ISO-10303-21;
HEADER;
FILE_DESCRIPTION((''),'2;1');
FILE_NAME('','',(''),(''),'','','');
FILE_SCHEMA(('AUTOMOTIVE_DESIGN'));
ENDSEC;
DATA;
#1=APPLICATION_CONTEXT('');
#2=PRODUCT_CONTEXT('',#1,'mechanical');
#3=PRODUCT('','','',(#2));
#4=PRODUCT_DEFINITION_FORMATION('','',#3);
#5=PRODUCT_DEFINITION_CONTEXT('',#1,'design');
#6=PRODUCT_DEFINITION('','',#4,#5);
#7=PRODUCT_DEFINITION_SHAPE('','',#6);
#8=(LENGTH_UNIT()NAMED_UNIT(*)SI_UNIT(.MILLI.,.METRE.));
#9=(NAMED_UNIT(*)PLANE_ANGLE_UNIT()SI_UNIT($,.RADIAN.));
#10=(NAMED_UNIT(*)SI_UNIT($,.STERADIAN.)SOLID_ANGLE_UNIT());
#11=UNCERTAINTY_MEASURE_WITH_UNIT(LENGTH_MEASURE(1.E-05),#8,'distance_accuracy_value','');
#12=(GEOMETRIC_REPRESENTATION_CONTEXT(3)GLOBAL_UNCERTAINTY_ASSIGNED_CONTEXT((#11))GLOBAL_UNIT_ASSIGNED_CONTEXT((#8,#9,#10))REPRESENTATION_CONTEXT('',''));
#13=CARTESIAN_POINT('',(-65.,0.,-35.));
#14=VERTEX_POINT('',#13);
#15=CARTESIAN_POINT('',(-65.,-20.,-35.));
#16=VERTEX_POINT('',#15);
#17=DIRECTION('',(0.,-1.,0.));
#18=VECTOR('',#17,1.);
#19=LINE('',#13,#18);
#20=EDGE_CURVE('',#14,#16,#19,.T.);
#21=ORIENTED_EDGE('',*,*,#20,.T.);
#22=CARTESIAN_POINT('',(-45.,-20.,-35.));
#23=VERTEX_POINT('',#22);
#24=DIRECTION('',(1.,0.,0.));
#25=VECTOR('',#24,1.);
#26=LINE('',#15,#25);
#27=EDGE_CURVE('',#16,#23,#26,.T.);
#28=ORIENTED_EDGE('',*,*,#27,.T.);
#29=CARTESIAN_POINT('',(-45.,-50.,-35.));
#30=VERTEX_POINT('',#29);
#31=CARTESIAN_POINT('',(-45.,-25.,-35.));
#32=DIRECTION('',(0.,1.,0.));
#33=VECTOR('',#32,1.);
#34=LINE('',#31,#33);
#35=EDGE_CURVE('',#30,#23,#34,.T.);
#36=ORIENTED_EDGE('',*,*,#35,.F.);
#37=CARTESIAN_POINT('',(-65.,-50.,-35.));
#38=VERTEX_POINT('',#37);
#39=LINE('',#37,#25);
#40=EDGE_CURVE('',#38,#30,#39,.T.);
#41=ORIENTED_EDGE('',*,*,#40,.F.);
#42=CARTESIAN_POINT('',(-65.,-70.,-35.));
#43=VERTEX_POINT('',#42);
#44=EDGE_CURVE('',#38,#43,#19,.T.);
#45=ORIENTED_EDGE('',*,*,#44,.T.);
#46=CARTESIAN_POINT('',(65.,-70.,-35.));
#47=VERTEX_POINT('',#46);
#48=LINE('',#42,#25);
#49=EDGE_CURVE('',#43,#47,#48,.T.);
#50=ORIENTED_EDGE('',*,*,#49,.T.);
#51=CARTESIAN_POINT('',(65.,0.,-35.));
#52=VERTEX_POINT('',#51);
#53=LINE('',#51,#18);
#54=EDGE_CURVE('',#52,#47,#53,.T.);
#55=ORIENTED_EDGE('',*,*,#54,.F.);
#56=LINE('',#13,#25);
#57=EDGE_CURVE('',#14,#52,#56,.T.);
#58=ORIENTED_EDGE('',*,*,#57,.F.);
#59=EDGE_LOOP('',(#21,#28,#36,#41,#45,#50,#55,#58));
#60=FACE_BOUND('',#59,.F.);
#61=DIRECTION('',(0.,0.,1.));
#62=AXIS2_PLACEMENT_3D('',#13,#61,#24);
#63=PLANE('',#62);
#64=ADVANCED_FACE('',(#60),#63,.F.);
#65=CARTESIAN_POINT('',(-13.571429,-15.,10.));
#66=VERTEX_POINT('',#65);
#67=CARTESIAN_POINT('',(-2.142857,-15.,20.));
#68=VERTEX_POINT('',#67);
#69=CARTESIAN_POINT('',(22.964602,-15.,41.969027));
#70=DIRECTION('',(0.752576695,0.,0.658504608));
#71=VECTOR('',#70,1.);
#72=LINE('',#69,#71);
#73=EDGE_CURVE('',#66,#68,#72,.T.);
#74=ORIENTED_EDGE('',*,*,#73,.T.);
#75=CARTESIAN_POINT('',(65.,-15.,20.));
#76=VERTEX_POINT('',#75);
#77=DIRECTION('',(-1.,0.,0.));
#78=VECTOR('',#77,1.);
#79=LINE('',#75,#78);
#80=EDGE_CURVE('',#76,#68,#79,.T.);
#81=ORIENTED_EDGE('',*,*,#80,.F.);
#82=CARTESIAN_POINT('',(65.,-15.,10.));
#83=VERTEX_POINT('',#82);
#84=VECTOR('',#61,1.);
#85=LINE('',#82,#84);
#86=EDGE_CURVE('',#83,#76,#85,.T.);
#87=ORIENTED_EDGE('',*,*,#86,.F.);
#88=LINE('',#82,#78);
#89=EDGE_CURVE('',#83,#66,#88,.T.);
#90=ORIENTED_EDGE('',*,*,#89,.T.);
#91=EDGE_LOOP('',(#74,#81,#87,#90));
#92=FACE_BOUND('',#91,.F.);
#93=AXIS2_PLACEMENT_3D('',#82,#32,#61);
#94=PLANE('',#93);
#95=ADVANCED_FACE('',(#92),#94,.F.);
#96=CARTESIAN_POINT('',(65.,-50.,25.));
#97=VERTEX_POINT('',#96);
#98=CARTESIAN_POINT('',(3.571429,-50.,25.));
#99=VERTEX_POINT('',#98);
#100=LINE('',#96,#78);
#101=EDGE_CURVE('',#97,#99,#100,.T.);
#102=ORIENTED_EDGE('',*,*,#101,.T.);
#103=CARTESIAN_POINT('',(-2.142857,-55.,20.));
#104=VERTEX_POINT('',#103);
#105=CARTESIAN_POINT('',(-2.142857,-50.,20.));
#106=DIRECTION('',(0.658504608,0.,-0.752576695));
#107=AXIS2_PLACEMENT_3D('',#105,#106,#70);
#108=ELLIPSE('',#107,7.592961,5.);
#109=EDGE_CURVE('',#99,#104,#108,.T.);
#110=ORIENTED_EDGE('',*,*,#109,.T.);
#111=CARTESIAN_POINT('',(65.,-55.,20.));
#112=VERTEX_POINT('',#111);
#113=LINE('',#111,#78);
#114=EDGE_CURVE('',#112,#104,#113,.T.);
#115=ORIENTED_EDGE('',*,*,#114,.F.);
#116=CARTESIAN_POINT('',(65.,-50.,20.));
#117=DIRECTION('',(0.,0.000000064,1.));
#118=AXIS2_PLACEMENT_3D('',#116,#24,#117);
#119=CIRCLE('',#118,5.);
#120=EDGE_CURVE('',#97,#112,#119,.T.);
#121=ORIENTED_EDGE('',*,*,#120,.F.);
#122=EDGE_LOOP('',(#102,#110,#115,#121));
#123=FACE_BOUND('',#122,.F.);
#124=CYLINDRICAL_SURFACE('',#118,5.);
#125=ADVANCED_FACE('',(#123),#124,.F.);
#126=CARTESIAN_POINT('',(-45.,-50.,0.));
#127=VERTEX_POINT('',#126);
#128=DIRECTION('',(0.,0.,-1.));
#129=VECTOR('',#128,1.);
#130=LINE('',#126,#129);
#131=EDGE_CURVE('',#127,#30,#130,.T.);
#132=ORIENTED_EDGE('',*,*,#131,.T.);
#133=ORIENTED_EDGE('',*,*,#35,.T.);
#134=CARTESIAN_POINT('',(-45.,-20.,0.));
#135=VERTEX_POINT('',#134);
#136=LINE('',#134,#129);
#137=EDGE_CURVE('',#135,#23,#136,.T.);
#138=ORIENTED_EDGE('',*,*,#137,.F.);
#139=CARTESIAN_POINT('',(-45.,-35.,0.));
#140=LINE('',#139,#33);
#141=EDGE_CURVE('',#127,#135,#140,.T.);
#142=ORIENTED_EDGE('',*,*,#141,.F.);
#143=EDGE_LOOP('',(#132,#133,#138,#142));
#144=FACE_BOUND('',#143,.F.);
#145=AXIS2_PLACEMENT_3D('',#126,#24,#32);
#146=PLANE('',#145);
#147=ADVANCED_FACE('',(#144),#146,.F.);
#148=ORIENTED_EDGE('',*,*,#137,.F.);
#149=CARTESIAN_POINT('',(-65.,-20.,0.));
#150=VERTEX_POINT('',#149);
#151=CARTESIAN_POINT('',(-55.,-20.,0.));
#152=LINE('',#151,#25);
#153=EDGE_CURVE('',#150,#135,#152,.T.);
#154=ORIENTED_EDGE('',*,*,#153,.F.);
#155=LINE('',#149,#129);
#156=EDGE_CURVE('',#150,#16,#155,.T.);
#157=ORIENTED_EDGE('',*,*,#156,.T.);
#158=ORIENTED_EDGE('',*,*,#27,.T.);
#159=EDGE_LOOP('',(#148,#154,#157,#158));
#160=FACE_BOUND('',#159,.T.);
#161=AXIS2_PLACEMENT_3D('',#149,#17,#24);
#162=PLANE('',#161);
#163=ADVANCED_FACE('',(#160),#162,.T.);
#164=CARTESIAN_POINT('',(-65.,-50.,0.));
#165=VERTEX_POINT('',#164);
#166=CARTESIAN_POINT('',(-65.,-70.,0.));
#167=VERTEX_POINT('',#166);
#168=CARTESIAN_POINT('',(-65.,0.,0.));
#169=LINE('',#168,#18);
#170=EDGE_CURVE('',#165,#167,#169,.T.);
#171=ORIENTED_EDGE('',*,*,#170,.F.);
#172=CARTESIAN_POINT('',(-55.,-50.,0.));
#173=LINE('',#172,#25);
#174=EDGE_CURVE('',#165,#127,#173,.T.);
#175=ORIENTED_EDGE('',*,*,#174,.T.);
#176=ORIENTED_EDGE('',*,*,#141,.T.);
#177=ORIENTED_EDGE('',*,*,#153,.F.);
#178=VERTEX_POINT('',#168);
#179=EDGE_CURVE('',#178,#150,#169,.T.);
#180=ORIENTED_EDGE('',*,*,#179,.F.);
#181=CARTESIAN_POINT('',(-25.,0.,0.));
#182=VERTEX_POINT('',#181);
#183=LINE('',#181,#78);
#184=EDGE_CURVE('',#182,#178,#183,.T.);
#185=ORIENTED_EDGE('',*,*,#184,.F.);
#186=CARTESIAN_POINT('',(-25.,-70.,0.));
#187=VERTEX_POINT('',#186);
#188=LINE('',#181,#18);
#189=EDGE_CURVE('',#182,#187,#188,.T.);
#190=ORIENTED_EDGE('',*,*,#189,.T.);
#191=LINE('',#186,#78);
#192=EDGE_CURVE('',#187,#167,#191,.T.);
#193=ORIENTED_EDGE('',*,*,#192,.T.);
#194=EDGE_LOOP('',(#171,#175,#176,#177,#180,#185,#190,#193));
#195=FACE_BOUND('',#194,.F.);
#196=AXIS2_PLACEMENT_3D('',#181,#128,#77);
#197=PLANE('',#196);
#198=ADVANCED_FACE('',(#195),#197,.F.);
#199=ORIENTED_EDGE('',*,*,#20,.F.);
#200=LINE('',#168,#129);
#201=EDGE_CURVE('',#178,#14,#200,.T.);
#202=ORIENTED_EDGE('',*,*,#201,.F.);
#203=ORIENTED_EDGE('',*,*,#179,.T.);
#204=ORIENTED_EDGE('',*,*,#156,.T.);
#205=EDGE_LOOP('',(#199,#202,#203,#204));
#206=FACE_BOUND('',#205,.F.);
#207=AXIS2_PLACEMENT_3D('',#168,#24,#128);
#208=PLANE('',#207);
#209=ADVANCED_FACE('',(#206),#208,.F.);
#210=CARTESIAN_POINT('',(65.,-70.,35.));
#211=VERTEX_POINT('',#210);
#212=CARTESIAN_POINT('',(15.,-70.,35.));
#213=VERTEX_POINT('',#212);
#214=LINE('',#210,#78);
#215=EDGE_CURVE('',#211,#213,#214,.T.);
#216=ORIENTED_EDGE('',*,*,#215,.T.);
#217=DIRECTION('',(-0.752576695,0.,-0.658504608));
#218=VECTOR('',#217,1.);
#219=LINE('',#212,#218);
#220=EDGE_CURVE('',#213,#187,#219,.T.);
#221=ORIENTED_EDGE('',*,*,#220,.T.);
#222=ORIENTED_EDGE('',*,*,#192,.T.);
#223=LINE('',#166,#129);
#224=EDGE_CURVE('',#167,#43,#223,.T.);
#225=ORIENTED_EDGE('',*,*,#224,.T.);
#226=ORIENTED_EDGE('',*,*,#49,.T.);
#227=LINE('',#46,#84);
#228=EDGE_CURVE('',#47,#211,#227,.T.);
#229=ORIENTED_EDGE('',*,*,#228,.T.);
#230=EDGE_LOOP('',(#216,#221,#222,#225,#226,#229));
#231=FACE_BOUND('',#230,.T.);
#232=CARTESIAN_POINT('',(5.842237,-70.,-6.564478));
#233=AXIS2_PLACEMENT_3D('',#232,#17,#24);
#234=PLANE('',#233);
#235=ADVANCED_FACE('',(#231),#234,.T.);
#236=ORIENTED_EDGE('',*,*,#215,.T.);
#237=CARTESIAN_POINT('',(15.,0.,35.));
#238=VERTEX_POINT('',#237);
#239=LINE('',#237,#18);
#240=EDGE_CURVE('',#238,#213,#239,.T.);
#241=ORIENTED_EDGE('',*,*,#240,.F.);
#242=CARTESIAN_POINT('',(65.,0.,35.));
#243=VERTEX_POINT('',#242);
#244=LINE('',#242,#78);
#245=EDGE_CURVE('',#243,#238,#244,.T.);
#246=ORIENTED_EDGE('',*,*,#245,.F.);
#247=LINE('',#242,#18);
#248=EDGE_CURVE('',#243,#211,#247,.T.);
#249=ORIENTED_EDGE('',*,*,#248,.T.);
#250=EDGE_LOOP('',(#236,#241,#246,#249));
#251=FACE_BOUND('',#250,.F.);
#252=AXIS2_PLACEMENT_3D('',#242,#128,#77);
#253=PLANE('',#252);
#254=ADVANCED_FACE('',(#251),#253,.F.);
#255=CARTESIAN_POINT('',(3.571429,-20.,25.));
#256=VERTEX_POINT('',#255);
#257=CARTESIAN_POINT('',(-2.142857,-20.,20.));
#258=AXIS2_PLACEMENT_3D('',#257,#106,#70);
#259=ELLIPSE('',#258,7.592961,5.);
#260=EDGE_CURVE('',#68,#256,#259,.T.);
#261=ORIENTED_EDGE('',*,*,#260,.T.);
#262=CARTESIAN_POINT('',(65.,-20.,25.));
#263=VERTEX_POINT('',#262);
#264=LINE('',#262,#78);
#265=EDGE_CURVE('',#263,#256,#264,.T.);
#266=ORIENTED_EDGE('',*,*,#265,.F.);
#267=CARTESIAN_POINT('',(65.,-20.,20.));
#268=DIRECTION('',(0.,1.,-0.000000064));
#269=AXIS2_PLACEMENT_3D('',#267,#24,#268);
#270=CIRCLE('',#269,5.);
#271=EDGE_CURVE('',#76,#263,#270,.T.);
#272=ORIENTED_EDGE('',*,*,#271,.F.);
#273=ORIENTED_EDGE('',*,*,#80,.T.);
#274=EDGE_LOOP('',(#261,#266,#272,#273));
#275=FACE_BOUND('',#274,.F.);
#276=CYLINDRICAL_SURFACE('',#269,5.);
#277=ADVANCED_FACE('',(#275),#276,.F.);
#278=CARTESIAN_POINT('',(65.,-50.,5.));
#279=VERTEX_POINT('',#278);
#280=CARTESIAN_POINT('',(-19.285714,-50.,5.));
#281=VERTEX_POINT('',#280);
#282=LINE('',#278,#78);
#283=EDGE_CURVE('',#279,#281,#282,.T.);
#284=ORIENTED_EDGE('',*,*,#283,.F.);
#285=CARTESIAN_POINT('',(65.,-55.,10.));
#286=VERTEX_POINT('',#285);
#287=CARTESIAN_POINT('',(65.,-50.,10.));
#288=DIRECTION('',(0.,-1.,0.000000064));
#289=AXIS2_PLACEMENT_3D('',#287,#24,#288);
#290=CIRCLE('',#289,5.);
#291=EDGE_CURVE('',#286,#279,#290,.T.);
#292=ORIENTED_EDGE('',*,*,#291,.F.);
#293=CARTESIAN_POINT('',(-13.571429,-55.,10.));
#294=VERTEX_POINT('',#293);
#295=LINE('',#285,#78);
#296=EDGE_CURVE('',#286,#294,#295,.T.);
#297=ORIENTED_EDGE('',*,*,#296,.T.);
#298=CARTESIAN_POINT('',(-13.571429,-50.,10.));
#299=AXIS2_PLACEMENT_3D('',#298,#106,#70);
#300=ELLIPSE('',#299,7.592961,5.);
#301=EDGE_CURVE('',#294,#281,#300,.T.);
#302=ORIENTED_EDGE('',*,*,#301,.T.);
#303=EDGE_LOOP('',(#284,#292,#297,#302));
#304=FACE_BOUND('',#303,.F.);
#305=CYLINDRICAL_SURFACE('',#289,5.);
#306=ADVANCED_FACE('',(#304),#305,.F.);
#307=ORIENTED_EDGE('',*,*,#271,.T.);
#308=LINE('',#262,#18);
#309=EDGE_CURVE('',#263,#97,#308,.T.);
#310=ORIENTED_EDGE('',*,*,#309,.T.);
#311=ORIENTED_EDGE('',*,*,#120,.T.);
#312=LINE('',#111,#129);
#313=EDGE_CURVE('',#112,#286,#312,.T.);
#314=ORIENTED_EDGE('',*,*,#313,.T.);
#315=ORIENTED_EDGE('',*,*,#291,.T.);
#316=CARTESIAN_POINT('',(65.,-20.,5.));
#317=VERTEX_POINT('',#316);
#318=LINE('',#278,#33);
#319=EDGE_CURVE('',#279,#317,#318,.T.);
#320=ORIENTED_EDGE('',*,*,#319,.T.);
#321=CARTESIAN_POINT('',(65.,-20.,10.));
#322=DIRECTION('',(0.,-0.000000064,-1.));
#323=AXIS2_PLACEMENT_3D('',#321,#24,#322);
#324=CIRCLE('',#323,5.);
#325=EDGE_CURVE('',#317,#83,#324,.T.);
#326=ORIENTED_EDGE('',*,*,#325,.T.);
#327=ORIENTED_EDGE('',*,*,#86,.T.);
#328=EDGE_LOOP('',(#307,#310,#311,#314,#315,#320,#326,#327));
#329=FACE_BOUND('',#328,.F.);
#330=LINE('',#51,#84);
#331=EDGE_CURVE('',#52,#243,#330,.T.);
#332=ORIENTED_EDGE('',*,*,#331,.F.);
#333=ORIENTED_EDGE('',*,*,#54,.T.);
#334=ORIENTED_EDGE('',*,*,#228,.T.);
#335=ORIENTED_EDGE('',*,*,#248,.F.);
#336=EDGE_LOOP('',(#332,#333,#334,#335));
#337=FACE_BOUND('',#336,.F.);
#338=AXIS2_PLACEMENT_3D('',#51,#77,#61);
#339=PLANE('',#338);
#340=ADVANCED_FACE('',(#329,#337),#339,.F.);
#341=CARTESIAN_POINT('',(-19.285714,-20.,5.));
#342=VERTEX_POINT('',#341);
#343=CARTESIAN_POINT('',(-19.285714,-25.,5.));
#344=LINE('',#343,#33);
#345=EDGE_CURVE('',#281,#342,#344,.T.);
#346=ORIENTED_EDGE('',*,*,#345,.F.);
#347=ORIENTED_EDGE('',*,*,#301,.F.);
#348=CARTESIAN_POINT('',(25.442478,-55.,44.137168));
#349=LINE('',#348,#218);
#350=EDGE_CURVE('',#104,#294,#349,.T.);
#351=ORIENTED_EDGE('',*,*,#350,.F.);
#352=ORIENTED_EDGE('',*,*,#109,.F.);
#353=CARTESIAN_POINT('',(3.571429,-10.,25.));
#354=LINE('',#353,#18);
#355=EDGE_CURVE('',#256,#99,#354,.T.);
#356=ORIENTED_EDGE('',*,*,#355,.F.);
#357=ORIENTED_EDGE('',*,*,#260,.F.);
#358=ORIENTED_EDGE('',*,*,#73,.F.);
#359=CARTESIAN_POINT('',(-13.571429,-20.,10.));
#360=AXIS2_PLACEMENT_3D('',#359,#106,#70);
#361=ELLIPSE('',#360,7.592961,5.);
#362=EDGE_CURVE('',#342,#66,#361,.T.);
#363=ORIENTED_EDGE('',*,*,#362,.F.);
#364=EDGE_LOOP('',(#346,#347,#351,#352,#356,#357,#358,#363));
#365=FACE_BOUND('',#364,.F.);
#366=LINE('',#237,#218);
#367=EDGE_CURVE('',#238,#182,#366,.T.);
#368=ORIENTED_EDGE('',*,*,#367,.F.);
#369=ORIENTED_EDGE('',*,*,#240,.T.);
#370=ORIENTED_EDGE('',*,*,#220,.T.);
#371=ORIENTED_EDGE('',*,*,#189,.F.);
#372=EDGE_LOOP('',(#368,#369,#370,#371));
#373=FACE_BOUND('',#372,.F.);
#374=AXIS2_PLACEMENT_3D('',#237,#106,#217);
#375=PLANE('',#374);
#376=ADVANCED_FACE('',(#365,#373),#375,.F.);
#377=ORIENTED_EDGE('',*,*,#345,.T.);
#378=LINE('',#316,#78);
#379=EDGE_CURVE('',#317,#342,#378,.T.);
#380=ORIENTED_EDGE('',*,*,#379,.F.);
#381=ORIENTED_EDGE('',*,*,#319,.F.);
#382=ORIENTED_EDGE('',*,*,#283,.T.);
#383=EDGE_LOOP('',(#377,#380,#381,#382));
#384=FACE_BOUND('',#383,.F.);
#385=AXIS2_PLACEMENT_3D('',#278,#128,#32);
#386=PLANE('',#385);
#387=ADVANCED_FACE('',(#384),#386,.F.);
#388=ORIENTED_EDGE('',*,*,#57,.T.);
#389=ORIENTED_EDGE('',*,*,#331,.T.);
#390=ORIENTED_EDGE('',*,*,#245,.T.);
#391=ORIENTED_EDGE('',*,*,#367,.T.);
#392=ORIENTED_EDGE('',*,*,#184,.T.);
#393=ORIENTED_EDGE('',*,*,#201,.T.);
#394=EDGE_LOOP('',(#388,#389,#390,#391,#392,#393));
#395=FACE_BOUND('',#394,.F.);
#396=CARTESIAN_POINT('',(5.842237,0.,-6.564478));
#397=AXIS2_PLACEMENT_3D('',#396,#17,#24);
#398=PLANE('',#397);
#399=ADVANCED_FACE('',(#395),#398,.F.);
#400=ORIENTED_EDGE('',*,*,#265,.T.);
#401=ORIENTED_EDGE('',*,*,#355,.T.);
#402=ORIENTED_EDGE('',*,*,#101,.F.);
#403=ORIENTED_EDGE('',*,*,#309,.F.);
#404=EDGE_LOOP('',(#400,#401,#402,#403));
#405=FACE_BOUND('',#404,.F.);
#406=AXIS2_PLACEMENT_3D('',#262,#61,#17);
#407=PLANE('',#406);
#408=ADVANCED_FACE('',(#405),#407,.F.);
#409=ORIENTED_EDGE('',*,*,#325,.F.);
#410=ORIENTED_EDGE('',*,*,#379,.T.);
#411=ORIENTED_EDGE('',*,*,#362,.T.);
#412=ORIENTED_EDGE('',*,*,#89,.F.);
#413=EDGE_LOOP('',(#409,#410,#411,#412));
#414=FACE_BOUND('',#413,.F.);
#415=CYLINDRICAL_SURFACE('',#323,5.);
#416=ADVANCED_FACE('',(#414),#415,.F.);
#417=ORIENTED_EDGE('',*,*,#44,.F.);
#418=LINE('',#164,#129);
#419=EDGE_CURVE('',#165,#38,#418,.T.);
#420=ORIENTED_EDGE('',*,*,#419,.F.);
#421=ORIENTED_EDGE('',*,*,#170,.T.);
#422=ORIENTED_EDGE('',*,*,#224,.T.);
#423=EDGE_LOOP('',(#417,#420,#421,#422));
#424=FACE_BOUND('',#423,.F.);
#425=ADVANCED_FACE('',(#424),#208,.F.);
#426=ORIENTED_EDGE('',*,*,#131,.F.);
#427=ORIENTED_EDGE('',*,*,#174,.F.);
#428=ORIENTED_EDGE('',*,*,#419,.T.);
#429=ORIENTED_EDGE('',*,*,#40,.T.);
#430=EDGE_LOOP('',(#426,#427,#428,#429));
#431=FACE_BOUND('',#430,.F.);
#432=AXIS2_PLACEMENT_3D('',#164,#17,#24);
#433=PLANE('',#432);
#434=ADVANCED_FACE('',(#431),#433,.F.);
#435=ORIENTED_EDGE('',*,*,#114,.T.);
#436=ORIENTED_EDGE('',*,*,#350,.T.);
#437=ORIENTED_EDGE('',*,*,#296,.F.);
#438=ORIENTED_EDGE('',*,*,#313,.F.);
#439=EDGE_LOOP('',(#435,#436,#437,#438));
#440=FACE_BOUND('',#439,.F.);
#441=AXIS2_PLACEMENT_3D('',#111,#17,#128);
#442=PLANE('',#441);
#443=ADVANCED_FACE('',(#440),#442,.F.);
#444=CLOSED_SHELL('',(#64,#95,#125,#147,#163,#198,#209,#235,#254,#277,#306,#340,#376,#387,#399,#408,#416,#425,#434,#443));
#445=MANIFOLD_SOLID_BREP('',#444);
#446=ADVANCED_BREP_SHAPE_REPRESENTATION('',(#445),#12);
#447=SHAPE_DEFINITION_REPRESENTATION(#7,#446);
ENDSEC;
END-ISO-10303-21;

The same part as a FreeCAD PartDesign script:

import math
import FreeCAD as App
import Part
import Sketcher
from FreeCAD import Vector


def add_polygon(sketch, points):
    """Adds a closed chain of lines whose ends are joined by coincident constraints."""
    first, n = sketch.GeometryCount, len(points)
    for a, b in zip(points, points[1:] + points[:1]):
        sketch.addGeometry(Part.LineSegment(App.Vector(*a, 0), App.Vector(*b, 0)), False)
    for i in range(n):
        sketch.addConstraint(Sketcher.Constraint("Coincident", first + i, 2, first + (i + 1) % n, 1))

doc = App.newDocument("Part")
body = doc.addObject("PartDesign::Body", "Body")

sketch1 = body.newObject("Sketcher::SketchObject", "Sketch")
sketch1.AttachmentSupport = (doc.getObject("XZ_Plane"), [""])
sketch1.MapMode = "FlatFace"
add_polygon(sketch1, [(-65, 0), (-65, -35), (65, -35), (65, 35), (15, 35), (-25, 0)])
sketch1.addConstraint(Sketcher.Constraint("Vertical", 0))
sketch1.addConstraint(Sketcher.Constraint("Horizontal", 1))
sketch1.addConstraint(Sketcher.Constraint("Vertical", 2))
sketch1.addConstraint(Sketcher.Constraint("Horizontal", 3))
sketch1.addConstraint(Sketcher.Constraint("Horizontal", 5))
sketch1.addConstraint(Sketcher.Constraint("Symmetric", 0, 2, 2, 2, -1, 1))
sketch1.addConstraint(Sketcher.Constraint("PointOnObject", 4, 2, -1))
sketch1.addConstraint(Sketcher.Constraint("DistanceX", 1, 1, 1, 2, 130.0))
sketch1.addConstraint(Sketcher.Constraint("DistanceX", 3, 2, 3, 1, 50.0))
sketch1.addConstraint(Sketcher.Constraint("DistanceX", 5, 2, 5, 1, 40.0))
sketch1.addConstraint(Sketcher.Constraint("DistanceY", 0, 2, 0, 1, 35.0))
pad1 = body.newObject("PartDesign::Pad", "Pad")
pad1.Profile = sketch1
pad1.Length = 70

sketch2 = body.newObject("Sketcher::SketchObject", "Sketch001")
sketch2.AttachmentSupport = (doc.getObject("XY_Plane"), [""])
sketch2.MapMode = "FlatFace"
add_polygon(sketch2, [(-65, -20), (-65, -50), (-45, -50), (-45, -20)])
sketch2.addConstraint(Sketcher.Constraint("Vertical", 0))
sketch2.addConstraint(Sketcher.Constraint("Horizontal", 1))
sketch2.addConstraint(Sketcher.Constraint("Vertical", 2))
sketch2.addConstraint(Sketcher.Constraint("Horizontal", 3))
sketch2.addConstraint(Sketcher.Constraint("DistanceX", 1, 1, 1, 2, 20.0))
sketch2.addConstraint(Sketcher.Constraint("DistanceY", 0, 2, 0, 1, 30.0))
sketch2.addConstraint(Sketcher.Constraint("DistanceX", 0, 2, -1, 1, 65.0))
sketch2.addConstraint(Sketcher.Constraint("DistanceY", 0, 2, -1, 1, 50.0))
pocket1 = body.newObject("PartDesign::Pocket", "Pocket")
pocket1.Profile = sketch2
pocket1.Type = "ThroughAll"

sketch3 = body.newObject("Sketcher::SketchObject", "Sketch002")
sketch3.AttachmentSupport = (doc.getObject("YZ_Plane"), [""])
sketch3.MapMode = "FlatFace"
sketch3.AttachmentOffset = App.Placement(Vector(0, 0, 65), App.Rotation())
sketch3.addGeometry(Part.ArcOfCircle(Part.Circle(Vector(-50, 10, 0), Vector(0, 0, 1), 5), math.radians(180), math.radians(270)), False)
sketch3.addGeometry(Part.LineSegment(Vector(-50, 5, 0), Vector(-20, 5, 0)), False)
sketch3.addGeometry(Part.ArcOfCircle(Part.Circle(Vector(-20, 10, 0), Vector(0, 0, 1), 5), math.radians(-90), math.radians(0)), False)
sketch3.addGeometry(Part.LineSegment(Vector(-15, 10, 0), Vector(-15, 20, 0)), False)
sketch3.addGeometry(Part.ArcOfCircle(Part.Circle(Vector(-20, 20, 0), Vector(0, 0, 1), 5), math.radians(0), math.radians(90)), False)
sketch3.addGeometry(Part.LineSegment(Vector(-20, 25, 0), Vector(-50, 25, 0)), False)
sketch3.addGeometry(Part.ArcOfCircle(Part.Circle(Vector(-50, 20, 0), Vector(0, 0, 1), 5), math.radians(90), math.radians(180)), False)
sketch3.addGeometry(Part.LineSegment(Vector(-55, 20, 0), Vector(-55, 10, 0)), False)
sketch3.addConstraint(Sketcher.Constraint("Tangent", 0, 2, 1, 1))
sketch3.addConstraint(Sketcher.Constraint("Tangent", 1, 2, 2, 1))
sketch3.addConstraint(Sketcher.Constraint("Tangent", 2, 2, 3, 1))
sketch3.addConstraint(Sketcher.Constraint("Tangent", 3, 2, 4, 1))
sketch3.addConstraint(Sketcher.Constraint("Tangent", 4, 2, 5, 1))
sketch3.addConstraint(Sketcher.Constraint("Tangent", 5, 2, 6, 1))
sketch3.addConstraint(Sketcher.Constraint("Tangent", 6, 2, 7, 1))
sketch3.addConstraint(Sketcher.Constraint("Tangent", 7, 2, 0, 1))
sketch3.addConstraint(Sketcher.Constraint("Horizontal", 1))
sketch3.addConstraint(Sketcher.Constraint("Vertical", 3))
sketch3.addConstraint(Sketcher.Constraint("Horizontal", 5))
sketch3.addConstraint(Sketcher.Constraint("Vertical", 7))
sketch3.addConstraint(Sketcher.Constraint("Equal", 0, 2))
sketch3.addConstraint(Sketcher.Constraint("Equal", 2, 4))
sketch3.addConstraint(Sketcher.Constraint("Equal", 4, 6))
sketch3.addConstraint(Sketcher.Constraint("Radius", 0, 5.0))
sketch3.addConstraint(Sketcher.Constraint("DistanceX", 1, 1, 1, 2, 30.0))
sketch3.addConstraint(Sketcher.Constraint("DistanceY", 3, 1, 3, 2, 10.0))
sketch3.addConstraint(Sketcher.Constraint("DistanceX", 0, 3, -1, 1, 50.0))
sketch3.addConstraint(Sketcher.Constraint("DistanceY", -1, 1, 0, 3, 10.0))
pocket2 = body.newObject("PartDesign::Pocket", "Pocket001")
pocket2.Profile = sketch3
pocket2.Type = "ThroughAll"

doc.recompute()
